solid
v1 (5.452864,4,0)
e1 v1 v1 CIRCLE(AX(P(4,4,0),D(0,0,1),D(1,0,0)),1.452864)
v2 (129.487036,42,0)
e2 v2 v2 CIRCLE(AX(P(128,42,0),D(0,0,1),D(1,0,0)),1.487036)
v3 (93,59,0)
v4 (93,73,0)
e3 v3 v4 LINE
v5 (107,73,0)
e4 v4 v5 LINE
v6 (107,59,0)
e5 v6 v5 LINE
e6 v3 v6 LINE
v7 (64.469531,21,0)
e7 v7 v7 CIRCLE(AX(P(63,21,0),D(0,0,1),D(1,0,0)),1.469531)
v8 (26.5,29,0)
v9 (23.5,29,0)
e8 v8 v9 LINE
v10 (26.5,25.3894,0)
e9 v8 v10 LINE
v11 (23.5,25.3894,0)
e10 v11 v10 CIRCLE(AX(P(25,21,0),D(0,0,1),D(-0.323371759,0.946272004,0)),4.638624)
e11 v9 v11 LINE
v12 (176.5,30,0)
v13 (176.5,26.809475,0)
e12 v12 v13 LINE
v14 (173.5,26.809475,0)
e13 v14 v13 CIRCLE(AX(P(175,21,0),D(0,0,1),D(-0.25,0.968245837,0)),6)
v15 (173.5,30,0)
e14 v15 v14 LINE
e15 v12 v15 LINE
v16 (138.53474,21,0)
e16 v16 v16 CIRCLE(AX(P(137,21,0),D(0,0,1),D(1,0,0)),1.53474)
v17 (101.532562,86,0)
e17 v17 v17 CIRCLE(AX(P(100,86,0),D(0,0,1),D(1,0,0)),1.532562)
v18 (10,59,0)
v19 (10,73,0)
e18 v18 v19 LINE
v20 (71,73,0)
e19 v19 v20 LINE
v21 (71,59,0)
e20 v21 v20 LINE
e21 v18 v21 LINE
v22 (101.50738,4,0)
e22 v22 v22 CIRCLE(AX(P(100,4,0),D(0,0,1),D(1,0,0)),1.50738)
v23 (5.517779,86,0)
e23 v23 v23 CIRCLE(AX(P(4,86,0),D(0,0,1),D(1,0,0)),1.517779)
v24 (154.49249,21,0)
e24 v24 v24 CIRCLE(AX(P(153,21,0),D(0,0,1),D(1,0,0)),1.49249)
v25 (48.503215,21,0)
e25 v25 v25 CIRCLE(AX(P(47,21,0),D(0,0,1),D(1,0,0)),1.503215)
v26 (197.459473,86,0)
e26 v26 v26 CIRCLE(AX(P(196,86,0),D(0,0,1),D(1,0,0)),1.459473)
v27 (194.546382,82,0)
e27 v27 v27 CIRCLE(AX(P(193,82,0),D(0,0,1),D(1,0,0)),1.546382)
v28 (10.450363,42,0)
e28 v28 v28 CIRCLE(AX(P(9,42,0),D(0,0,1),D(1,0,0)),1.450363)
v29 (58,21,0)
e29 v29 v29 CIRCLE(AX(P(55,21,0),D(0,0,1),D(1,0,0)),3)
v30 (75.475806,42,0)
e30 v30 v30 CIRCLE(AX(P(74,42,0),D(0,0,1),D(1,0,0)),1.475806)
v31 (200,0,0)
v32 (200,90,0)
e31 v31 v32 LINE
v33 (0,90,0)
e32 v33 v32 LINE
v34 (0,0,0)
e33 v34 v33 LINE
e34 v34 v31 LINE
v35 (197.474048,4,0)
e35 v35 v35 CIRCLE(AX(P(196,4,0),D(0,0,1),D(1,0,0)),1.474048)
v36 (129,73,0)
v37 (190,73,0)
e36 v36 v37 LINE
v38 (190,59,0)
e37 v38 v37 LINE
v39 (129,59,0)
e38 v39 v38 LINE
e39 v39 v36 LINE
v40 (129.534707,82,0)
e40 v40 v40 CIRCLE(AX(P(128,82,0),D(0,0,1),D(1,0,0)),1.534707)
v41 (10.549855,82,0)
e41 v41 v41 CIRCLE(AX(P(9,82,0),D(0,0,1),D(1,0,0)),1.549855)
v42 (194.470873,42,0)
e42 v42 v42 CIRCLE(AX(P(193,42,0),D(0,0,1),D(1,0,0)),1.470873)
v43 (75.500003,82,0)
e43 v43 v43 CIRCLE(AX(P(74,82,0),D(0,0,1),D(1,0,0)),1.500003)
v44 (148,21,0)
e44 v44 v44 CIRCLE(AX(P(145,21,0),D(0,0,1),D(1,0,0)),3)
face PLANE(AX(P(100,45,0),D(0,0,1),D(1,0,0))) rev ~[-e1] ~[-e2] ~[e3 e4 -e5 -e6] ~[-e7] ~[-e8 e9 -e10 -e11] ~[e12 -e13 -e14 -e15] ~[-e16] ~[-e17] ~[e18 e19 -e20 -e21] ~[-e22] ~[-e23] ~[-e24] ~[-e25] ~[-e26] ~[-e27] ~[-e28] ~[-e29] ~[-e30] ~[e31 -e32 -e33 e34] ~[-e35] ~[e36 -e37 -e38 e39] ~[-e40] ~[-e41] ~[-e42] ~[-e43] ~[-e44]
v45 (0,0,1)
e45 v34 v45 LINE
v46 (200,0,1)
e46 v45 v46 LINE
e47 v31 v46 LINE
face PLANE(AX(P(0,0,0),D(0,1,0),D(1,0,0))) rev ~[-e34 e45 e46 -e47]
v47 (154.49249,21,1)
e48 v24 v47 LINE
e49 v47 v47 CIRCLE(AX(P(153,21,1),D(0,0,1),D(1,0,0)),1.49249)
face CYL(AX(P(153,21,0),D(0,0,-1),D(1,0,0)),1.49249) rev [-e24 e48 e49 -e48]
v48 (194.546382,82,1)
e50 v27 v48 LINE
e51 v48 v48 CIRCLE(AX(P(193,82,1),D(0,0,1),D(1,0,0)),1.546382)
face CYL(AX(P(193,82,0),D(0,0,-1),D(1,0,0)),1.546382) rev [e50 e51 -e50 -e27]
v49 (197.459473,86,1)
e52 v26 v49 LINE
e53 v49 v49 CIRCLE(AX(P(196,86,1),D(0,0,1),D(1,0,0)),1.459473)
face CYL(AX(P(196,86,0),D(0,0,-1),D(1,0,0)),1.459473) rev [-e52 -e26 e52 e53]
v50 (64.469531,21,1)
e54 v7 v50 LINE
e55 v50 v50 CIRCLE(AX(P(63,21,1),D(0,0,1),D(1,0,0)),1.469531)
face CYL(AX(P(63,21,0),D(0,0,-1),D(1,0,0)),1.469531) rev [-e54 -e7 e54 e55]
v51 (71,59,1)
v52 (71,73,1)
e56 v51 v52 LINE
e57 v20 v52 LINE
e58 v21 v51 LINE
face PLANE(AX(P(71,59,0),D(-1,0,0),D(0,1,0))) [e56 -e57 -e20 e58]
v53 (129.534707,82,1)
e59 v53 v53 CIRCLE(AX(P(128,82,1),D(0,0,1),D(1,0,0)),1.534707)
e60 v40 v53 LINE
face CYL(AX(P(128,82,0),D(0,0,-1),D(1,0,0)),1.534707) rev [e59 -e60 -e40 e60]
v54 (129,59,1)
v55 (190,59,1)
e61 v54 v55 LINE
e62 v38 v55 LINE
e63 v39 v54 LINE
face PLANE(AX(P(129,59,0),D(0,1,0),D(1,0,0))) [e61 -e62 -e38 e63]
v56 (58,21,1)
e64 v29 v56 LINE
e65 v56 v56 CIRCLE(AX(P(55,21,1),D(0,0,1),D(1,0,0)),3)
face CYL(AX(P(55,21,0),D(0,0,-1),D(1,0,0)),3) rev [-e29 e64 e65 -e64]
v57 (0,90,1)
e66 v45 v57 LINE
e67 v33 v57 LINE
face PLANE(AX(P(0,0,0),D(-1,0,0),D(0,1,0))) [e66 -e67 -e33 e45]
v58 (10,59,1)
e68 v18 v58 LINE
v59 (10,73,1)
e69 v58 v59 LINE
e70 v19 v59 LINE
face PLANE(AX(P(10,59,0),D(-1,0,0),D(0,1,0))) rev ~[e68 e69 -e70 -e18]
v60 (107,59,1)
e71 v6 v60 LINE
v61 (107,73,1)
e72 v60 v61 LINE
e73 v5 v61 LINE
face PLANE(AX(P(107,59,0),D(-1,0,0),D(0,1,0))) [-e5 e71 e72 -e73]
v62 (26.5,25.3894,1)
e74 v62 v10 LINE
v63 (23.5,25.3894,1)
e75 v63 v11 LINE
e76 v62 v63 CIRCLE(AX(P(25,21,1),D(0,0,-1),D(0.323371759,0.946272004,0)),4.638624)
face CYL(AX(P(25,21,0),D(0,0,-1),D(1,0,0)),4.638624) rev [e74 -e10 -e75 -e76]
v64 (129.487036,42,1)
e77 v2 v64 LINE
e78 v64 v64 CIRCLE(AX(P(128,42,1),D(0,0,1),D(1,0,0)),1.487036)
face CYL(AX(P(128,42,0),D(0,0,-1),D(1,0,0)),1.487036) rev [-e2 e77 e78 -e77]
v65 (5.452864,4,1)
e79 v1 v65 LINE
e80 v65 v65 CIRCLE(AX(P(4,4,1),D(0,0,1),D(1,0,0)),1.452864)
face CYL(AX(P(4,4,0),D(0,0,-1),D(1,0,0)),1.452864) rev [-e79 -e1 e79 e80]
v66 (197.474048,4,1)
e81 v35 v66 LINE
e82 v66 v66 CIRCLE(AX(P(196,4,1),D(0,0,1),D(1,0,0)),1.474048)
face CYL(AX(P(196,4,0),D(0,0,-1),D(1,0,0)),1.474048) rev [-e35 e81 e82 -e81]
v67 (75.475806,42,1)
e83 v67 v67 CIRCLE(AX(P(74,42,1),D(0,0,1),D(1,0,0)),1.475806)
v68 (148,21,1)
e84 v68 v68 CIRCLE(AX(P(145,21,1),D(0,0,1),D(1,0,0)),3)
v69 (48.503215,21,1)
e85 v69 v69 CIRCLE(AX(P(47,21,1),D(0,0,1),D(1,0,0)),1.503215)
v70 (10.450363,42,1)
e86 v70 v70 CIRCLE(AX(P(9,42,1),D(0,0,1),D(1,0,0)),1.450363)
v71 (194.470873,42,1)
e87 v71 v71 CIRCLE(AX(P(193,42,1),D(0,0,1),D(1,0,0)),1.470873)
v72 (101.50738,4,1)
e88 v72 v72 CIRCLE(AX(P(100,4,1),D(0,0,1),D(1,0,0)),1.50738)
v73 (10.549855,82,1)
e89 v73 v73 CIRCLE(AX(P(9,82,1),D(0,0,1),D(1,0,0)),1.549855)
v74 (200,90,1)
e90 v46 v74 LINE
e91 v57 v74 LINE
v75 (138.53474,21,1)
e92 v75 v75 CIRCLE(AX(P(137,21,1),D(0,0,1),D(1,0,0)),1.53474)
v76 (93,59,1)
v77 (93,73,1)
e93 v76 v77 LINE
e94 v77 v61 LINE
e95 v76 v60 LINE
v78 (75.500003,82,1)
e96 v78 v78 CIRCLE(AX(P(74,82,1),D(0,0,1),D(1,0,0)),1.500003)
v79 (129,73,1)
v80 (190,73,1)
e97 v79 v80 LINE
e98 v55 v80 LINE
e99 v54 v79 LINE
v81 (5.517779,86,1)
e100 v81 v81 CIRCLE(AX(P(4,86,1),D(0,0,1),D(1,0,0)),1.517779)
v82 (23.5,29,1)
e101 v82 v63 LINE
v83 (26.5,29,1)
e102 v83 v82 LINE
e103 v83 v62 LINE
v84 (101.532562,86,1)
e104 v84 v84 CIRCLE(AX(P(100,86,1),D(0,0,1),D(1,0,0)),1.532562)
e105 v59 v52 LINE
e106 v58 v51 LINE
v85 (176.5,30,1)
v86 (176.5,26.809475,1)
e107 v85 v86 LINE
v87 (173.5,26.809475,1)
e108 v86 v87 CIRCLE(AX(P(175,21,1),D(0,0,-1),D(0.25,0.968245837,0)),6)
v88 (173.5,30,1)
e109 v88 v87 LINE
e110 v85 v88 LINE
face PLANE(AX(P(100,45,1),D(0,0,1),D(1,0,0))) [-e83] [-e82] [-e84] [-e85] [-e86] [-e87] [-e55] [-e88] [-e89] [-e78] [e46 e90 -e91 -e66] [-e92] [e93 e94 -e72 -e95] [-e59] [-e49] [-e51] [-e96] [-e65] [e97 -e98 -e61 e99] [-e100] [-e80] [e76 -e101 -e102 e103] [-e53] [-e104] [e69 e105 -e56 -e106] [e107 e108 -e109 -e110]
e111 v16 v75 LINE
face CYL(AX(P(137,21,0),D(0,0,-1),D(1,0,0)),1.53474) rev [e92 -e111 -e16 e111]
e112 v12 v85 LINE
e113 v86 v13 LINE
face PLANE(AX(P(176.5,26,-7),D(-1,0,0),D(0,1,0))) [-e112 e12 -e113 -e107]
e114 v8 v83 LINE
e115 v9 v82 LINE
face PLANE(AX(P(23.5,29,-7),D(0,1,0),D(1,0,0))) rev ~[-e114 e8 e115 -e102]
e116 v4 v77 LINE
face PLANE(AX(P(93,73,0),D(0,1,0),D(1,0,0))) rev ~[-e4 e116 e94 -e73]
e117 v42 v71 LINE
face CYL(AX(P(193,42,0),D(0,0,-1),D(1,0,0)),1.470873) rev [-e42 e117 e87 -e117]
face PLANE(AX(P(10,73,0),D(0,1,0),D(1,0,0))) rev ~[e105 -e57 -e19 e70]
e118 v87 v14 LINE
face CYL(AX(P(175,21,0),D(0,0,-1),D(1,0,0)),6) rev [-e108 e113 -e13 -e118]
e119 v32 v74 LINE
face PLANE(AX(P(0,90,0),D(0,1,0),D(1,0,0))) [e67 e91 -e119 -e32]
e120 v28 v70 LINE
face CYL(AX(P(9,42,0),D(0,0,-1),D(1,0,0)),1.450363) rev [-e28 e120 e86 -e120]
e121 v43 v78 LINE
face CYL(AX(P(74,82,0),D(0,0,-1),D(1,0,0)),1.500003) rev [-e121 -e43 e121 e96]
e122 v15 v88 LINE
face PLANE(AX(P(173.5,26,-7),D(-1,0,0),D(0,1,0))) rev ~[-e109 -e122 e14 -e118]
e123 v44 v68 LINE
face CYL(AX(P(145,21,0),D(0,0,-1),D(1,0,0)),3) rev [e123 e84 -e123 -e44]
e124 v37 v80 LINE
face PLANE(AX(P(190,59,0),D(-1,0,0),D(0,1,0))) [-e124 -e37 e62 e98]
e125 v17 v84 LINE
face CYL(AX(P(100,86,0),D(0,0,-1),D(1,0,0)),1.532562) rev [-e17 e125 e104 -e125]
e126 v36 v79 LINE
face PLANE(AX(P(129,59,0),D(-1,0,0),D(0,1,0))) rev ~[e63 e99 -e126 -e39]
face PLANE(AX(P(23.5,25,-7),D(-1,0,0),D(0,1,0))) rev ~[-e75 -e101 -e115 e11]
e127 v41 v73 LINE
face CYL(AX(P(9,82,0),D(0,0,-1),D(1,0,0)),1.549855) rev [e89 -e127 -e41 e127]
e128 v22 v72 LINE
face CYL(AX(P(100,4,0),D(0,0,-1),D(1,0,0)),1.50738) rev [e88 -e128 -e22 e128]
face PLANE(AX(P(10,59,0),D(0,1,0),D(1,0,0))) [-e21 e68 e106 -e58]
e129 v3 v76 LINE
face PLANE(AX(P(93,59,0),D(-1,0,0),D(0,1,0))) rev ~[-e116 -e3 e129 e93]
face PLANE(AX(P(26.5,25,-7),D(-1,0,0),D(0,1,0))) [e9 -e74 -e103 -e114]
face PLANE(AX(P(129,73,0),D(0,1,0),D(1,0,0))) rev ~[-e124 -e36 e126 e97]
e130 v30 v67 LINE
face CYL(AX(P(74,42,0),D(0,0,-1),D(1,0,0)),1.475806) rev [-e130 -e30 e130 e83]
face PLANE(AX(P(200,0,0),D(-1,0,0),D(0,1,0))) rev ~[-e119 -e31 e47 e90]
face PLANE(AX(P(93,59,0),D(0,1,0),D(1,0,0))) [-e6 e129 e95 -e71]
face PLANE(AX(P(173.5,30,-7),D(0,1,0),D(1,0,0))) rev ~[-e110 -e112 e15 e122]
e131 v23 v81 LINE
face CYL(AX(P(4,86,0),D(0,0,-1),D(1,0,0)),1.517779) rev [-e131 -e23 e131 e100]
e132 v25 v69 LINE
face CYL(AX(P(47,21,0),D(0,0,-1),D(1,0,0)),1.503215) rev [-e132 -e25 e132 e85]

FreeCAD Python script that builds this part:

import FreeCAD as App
import Part
import Sketcher

V = App.Vector
Q = App.Units.Quantity

doc = App.newDocument("Part")
body = doc.addObject("PartDesign::Body", "Body")

sketch1 = body.newObject("Sketcher::SketchObject", "Sketch")
sketch1.AttachmentSupport = (doc.getObject("XY_Plane"), [""])
sketch1.MapMode = "FlatFace"
sketch1.AttachmentOffset = App.Placement(V(0, 0, -7), App.Rotation())
sketch1.addGeometry([
    Part.LineSegment(V(173.5, 30, 0), V(173.5, 26, 0)),
    Part.LineSegment(V(173.5, 26, 0), V(176.5, 26, 0)),
    Part.LineSegment(V(176.5, 26, 0), V(176.5, 30, 0)),
    Part.LineSegment(V(176.5, 30, 0), V(173.5, 30, 0)),
], False)
sketch1.addConstraint([
    Sketcher.Constraint("Coincident", 0, 2, 1, 1),
    Sketcher.Constraint("Coincident", 1, 2, 2, 1),
    Sketcher.Constraint("Coincident", 2, 2, 3, 1),
    Sketcher.Constraint("Coincident", 3, 2, 0, 1),
    Sketcher.Constraint("Vertical", 0),
    Sketcher.Constraint("Horizontal", 1),
    Sketcher.Constraint("Vertical", 2),
    Sketcher.Constraint("Horizontal", 3),
    Sketcher.Constraint("DistanceX", 1, 1, 1, 2, Q("3 mm")),
    Sketcher.Constraint("DistanceY", 0, 2, 0, 1, Q("4 mm")),
    Sketcher.Constraint("DistanceY", -1, 1, 0, 2, Q("26 mm")),
    Sketcher.Constraint("DistanceX", -1, 1, 0, 2, Q("173.5 mm")),
])
pad1 = body.newObject("PartDesign::Pad", "Pad")
pad1.Profile = sketch1
pad1.Length = 15
body2 = doc.addObject("PartDesign::Body", "Body001")

sketch2 = body2.newObject("Sketcher::SketchObject", "Sketch001")
sketch2.AttachmentSupport = (doc.getObject("XY_Plane001"), [""])
sketch2.MapMode = "FlatFace"
sketch2.AttachmentOffset = App.Placement(V(0, 0, -7), App.Rotation())
sketch2.addGeometry([
    Part.LineSegment(V(23.5, 29, 0), V(23.5, 25, 0)),
    Part.LineSegment(V(23.5, 25, 0), V(26.5, 25, 0)),
    Part.LineSegment(V(26.5, 25, 0), V(26.5, 29, 0)),
    Part.LineSegment(V(26.5, 29, 0), V(23.5, 29, 0)),
], False)
sketch2.addConstraint([
    Sketcher.Constraint("Coincident", 0, 2, 1, 1),
    Sketcher.Constraint("Coincident", 1, 2, 2, 1),
    Sketcher.Constraint("Coincident", 2, 2, 3, 1),
    Sketcher.Constraint("Coincident", 3, 2, 0, 1),
    Sketcher.Constraint("Vertical", 0),
    Sketcher.Constraint("Horizontal", 1),
    Sketcher.Constraint("Vertical", 2),
    Sketcher.Constraint("Horizontal", 3),
    Sketcher.Constraint("DistanceX", 1, 1, 1, 2, Q("3 mm")),
    Sketcher.Constraint("DistanceY", 0, 2, 0, 1, Q("4 mm")),
    Sketcher.Constraint("DistanceY", -1, 1, 0, 2, Q("25 mm")),
    Sketcher.Constraint("DistanceX", -1, 1, 0, 2, Q("23.5 mm")),
])
pad2 = body2.newObject("PartDesign::Pad", "Pad001")
pad2.Profile = sketch2
pad2.Length = 15
body3 = doc.addObject("PartDesign::Body", "Body002")

sketch3 = body3.newObject("Sketcher::SketchObject", "Sketch002")
sketch3.AttachmentSupport = (doc.getObject("XY_Plane002"), [""])
sketch3.MapMode = "FlatFace"
sketch3.addGeometry([
    Part.LineSegment(V(0, 90, 0), V(0, 0, 0)),
    Part.LineSegment(V(0, 0, 0), V(200, 0, 0)),
    Part.LineSegment(V(200, 0, 0), V(200, 90, 0)),
    Part.LineSegment(V(200, 90, 0), V(0, 90, 0)),
    Part.Circle(V(4, 4, 0), V(0, 0, 1), 1.452864),
    Part.Circle(V(25, 21, 0), V(0, 0, 1), 4.638624),
    Part.Circle(V(47, 21, 0), V(0, 0, 1), 1.503215),
    Part.Circle(V(55, 21, 0), V(0, 0, 1), 3),
    Part.Circle(V(63, 21, 0), V(0, 0, 1), 1.469531),
    Part.Circle(V(9, 42, 0), V(0, 0, 1), 1.450363),
    Part.Circle(V(74, 42, 0), V(0, 0, 1), 1.475806),
    Part.Circle(V(100, 4, 0), V(0, 0, 1), 1.50738),
    Part.Circle(V(137, 21, 0), V(0, 0, 1), 1.53474),
    Part.Circle(V(145, 21, 0), V(0, 0, 1), 3),
    Part.Circle(V(196, 4, 0), V(0, 0, 1), 1.474048),
    Part.Circle(V(153, 21, 0), V(0, 0, 1), 1.49249),
    Part.Circle(V(175, 21, 0), V(0, 0, 1), 6),
    Part.Circle(V(128, 42, 0), V(0, 0, 1), 1.487036),
    Part.Circle(V(193, 42, 0), V(0, 0, 1), 1.470873),
    Part.LineSegment(V(71, 59, 0), V(10, 59, 0)),
    Part.LineSegment(V(10, 59, 0), V(10, 73, 0)),
    Part.LineSegment(V(10, 73, 0), V(71, 73, 0)),
    Part.LineSegment(V(71, 73, 0), V(71, 59, 0)),
    Part.Circle(V(9, 82, 0), V(0, 0, 1), 1.549855),
    Part.Circle(V(4, 86, 0), V(0, 0, 1), 1.517779),
    Part.Circle(V(74, 82, 0), V(0, 0, 1), 1.500003),
    Part.LineSegment(V(107, 59, 0), V(93, 59, 0)),
    Part.LineSegment(V(93, 59, 0), V(93, 73, 0)),
    Part.LineSegment(V(93, 73, 0), V(107, 73, 0)),
    Part.LineSegment(V(107, 73, 0), V(107, 59, 0)),
    Part.LineSegment(V(190, 59, 0), V(129, 59, 0)),
    Part.LineSegment(V(129, 59, 0), V(129, 73, 0)),
    Part.LineSegment(V(129, 73, 0), V(190, 73, 0)),
    Part.LineSegment(V(190, 73, 0), V(190, 59, 0)),
    Part.Circle(V(100, 86, 0), V(0, 0, 1), 1.532562),
    Part.Circle(V(128, 82, 0), V(0, 0, 1), 1.534707),
    Part.Circle(V(193, 82, 0), V(0, 0, 1), 1.546382),
    Part.Circle(V(196, 86, 0), V(0, 0, 1), 1.459473),
], False)
sketch3.addConstraint([
    Sketcher.Constraint("Coincident", 0, 2, 1, 1),
    Sketcher.Constraint("Coincident", 1, 2, 2, 1),
    Sketcher.Constraint("Coincident", 2, 2, 3, 1),
    Sketcher.Constraint("Coincident", 3, 2, 0, 1),
    Sketcher.Constraint("Coincident", 19, 2, 20, 1),
    Sketcher.Constraint("Coincident", 20, 2, 21, 1),
    Sketcher.Constraint("Coincident", 21, 2, 22, 1),
    Sketcher.Constraint("Coincident", 22, 2, 19, 1),
    Sketcher.Constraint("Coincident", 26, 2, 27, 1),
    Sketcher.Constraint("Coincident", 27, 2, 28, 1),
    Sketcher.Constraint("Coincident", 28, 2, 29, 1),
    Sketcher.Constraint("Coincident", 29, 2, 26, 1),
    Sketcher.Constraint("Coincident", 30, 2, 31, 1),
    Sketcher.Constraint("Coincident", 31, 2, 32, 1),
    Sketcher.Constraint("Coincident", 32, 2, 33, 1),
    Sketcher.Constraint("Coincident", 33, 2, 30, 1),
    Sketcher.Constraint("Vertical", 0),
    Sketcher.Constraint("Horizontal", 1),
    Sketcher.Constraint("Vertical", 2),
    Sketcher.Constraint("Horizontal", 3),
    Sketcher.Constraint("Horizontal", 19),
    Sketcher.Constraint("Vertical", 20),
    Sketcher.Constraint("Horizontal", 21),
    Sketcher.Constraint("Vertical", 22),
    Sketcher.Constraint("Horizontal", 26),
    Sketcher.Constraint("Vertical", 27),
    Sketcher.Constraint("Horizontal", 28),
    Sketcher.Constraint("Vertical", 29),
    Sketcher.Constraint("Horizontal", 30),
    Sketcher.Constraint("Vertical", 31),
    Sketcher.Constraint("Horizontal", 32),
    Sketcher.Constraint("Vertical", 33),
    Sketcher.Constraint("Coincident", 0, 2, -1, 1),
    Sketcher.Constraint("Equal", 7, 13),
    Sketcher.Constraint("Horizontal", 5, 3, 6, 3),
    Sketcher.Constraint("Horizontal", 6, 3, 7, 3),
    Sketcher.Constraint("Horizontal", 7, 3, 8, 3),
    Sketcher.Constraint("Horizontal", 9, 3, 10, 3),
    Sketcher.Constraint("Horizontal", 4, 3, 11, 3),
    Sketcher.Constraint("Horizontal", 8, 3, 12, 3),
    Sketcher.Constraint("Horizontal", 12, 3, 13, 3),
    Sketcher.Constraint("Horizontal", 11, 3, 14, 3),
    Sketcher.Constraint("Horizontal", 13, 3, 15, 3),
    Sketcher.Constraint("Horizontal", 15, 3, 16, 3),
    Sketcher.Constraint("Horizontal", 10, 3, 17, 3),
    Sketcher.Constraint("Horizontal", 17, 3, 18, 3),
    Sketcher.Constraint("Horizontal", 23, 3, 25, 3),
    Sketcher.Constraint("Horizontal", 24, 3, 34, 3),
    Sketcher.Constraint("Horizontal", 25, 3, 35, 3),
    Sketcher.Constraint("Horizontal", 35, 3, 36, 3),
    Sketcher.Constraint("Horizontal", 34, 3, 37, 3),
    Sketcher.Constraint("Horizontal", 22, 2, 26, 2),
    Sketcher.Constraint("Horizontal", 21, 2, 27, 2),
    Sketcher.Constraint("Horizontal", 29, 2, 30, 2),
    Sketcher.Constraint("Horizontal", 28, 2, 31, 2),
    Sketcher.Constraint("Vertical", 9, 3, 23, 3),
    Sketcher.Constraint("Vertical", 4, 3, 24, 3),
    Sketcher.Constraint("Vertical", 10, 3, 25, 3),
    Sketcher.Constraint("Vertical", 11, 3, 34, 3),
    Sketcher.Constraint("Vertical", 17, 3, 35, 3),
    Sketcher.Constraint("Vertical", 18, 3, 36, 3),
    Sketcher.Constraint("Vertical", 14, 3, 37, 3),
    Sketcher.Constraint("Equal", 21, 30),
    Sketcher.Constraint("Equal", 28, 20),
    Sketcher.Constraint("Diameter", 7, Q("6 mm")),
    Sketcher.Constraint("Diameter", 16, Q("12 mm")),
    Sketcher.Constraint("DistanceX", 1, 1, 1, 2, Q("200 mm")),
    Sketcher.Constraint("DistanceX", 19, 2, 19, 1, Q("61 mm")),
    Sketcher.Constraint("DistanceX", 26, 2, 26, 1, Q("14 mm")),
    Sketcher.Constraint("DistanceY", 0, 2, 0, 1, Q("90 mm")),
    Sketcher.Constraint("DistanceX", -1, 1, 4, 3, Q("4 mm")),
    Sketcher.Constraint("DistanceY", -1, 1, 4, 3, Q("4 mm")),
    Sketcher.Constraint("DistanceX", -1, 1, 5, 3, Q("25 mm")),
    Sketcher.Constraint("DistanceY", -1, 1, 5, 3, Q("21 mm")),
    Sketcher.Constraint("DistanceX", -1, 1, 6, 3, Q("47 mm")),
    Sketcher.Constraint("DistanceX", -1, 1, 7, 3, Q("55 mm")),
    Sketcher.Constraint("DistanceX", -1, 1, 8, 3, Q("63 mm")),
    Sketcher.Constraint("DistanceX", -1, 1, 9, 3, Q("9 mm")),
    Sketcher.Constraint("DistanceY", -1, 1, 9, 3, Q("42 mm")),
    Sketcher.Constraint("DistanceX", -1, 1, 10, 3, Q("74 mm")),
    Sketcher.Constraint("DistanceX", -1, 1, 11, 3, Q("100 mm")),
    Sketcher.Constraint("DistanceX", -1, 1, 12, 3, Q("137 mm")),
    Sketcher.Constraint("DistanceX", -1, 1, 13, 3, Q("145 mm")),
    Sketcher.Constraint("DistanceX", -1, 1, 14, 3, Q("196 mm")),
    Sketcher.Constraint("DistanceX", -1, 1, 15, 3, Q("153 mm")),
    Sketcher.Constraint("DistanceX", -1, 1, 16, 3, Q("175 mm")),
    Sketcher.Constraint("DistanceX", -1, 1, 17, 3, Q("128 mm")),
    Sketcher.Constraint("DistanceX", -1, 1, 18, 3, Q("193 mm")),
    Sketcher.Constraint("DistanceY", -1, 1, 23, 3, Q("82 mm")),
    Sketcher.Constraint("DistanceY", -1, 1, 24, 3, Q("86 mm")),
    Sketcher.Constraint("DistanceX", -1, 1, 19, 2, Q("10 mm")),
    Sketcher.Constraint("DistanceY", -1, 1, 19, 2, Q("59 mm")),
    Sketcher.Constraint("DistanceX", -1, 1, 26, 2, Q("93 mm")),
    Sketcher.Constraint("DistanceX", -1, 1, 30, 2, Q("129 mm")),
    Sketcher.Constraint("Diameter", 6, Q("3.00643 mm")),
    Sketcher.Constraint("Diameter", 8, Q("2.939062 mm")),
    Sketcher.Constraint("Diameter", 10, Q("2.951612 mm")),
    Sketcher.Constraint("Diameter", 11, Q("3.01476 mm")),
    Sketcher.Constraint("Diameter", 12, Q("3.06948 mm")),
    Sketcher.Constraint("Diameter", 15, Q("2.98498 mm")),
    Sketcher.Constraint("Diameter", 17, Q("2.974072 mm")),
    Sketcher.Constraint("Diameter", 23, Q("3.09971 mm")),
    Sketcher.Constraint("Diameter", 24, Q("3.035558 mm")),
    Sketcher.Constraint("Diameter", 4, Q("2.905728 mm")),
    Sketcher.Constraint("Diameter", 5, Q("9.277248 mm")),
    Sketcher.Constraint("Diameter", 9, Q("2.900726 mm")),
    Sketcher.Constraint("Diameter", 14, Q("2.948096 mm")),
    Sketcher.Constraint("Diameter", 18, Q("2.941746 mm")),
    Sketcher.Constraint("Diameter", 25, Q("3.000006 mm")),
    Sketcher.Constraint("Diameter", 34, Q("3.065124 mm")),
    Sketcher.Constraint("Diameter", 35, Q("3.069414 mm")),
    Sketcher.Constraint("Diameter", 36, Q("3.092764 mm")),
    Sketcher.Constraint("Diameter", 37, Q("2.918946 mm")),
])
pad3 = body3.newObject("PartDesign::Pad", "Pad002")
pad3.Profile = sketch3
pad3.Length = 1
doc.recompute()

boolean = body3.newObject("PartDesign::Boolean", "Boolean")
boolean.Type = "Cut"
boolean.addObjects([body2])
doc.recompute()

boolean2 = body3.newObject("PartDesign::Boolean", "Boolean001")
boolean2.Type = "Cut"
boolean2.addObjects([body])

doc.recompute()
